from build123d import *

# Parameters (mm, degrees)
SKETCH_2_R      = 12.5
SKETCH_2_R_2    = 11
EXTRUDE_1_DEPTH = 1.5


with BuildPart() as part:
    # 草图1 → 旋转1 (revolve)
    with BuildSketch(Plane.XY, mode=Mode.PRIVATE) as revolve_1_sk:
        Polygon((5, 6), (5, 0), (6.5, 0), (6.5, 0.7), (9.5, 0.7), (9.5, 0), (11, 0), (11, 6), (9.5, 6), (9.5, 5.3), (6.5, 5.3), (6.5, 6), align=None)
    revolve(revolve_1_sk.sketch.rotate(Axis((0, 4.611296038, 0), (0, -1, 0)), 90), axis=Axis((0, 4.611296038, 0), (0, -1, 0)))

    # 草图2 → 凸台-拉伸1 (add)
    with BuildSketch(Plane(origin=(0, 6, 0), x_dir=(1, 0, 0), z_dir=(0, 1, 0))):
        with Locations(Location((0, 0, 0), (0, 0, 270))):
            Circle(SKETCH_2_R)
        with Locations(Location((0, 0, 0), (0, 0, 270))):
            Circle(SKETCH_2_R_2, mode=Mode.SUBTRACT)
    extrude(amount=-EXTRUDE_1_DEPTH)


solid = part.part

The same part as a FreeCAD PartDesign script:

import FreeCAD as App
import Part
import Sketcher

V = App.Vector

doc = App.newDocument("Part")
body = doc.addObject("PartDesign::Body", "Body")

sketch1 = doc.addObject("Sketcher::SketchObject", "Sketch")
body.addObject(sketch1)
sketch1.AttachmentSupport = (doc.XY_Plane, [""])
sketch1.MapMode = "FlatFace"
sketch1.addGeometry(Part.LineSegment(V(5, 6, 0), V(5, 0, 0)), False)
sketch1.addGeometry(Part.LineSegment(V(5, 0, 0), V(6.5, 0, 0)), False)
sketch1.addGeometry(Part.LineSegment(V(6.5, 0, 0), V(6.5, 0.7, 0)), False)
sketch1.addGeometry(Part.LineSegment(V(6.5, 0.7, 0), V(9.5, 0.7, 0)), False)
sketch1.addGeometry(Part.LineSegment(V(9.5, 0.7, 0), V(9.5, 0, 0)), False)
sketch1.addGeometry(Part.LineSegment(V(9.5, 0, 0), V(11, 0, 0)), False)
sketch1.addGeometry(Part.LineSegment(V(11, 0, 0), V(11, 6, 0)), False)
sketch1.addGeometry(Part.LineSegment(V(11, 6, 0), V(9.5, 6, 0)), False)
sketch1.addGeometry(Part.LineSegment(V(9.5, 6, 0), V(9.5, 5.3, 0)), False)
sketch1.addGeometry(Part.LineSegment(V(9.5, 5.3, 0), V(6.5, 5.3, 0)), False)
sketch1.addGeometry(Part.LineSegment(V(6.5, 5.3, 0), V(6.5, 6, 0)), False)
sketch1.addGeometry(Part.LineSegment(V(6.5, 6, 0), V(5, 6, 0)), False)
sketch1.addConstraint(Sketcher.Constraint("Coincident", 0, 2, 1, 1))
sketch1.addConstraint(Sketcher.Constraint("Coincident", 1, 2, 2, 1))
sketch1.addConstraint(Sketcher.Constraint("Coincident", 2, 2, 3, 1))
sketch1.addConstraint(Sketcher.Constraint("Coincident", 3, 2, 4, 1))
sketch1.addConstraint(Sketcher.Constraint("Coincident", 4, 2, 5, 1))
sketch1.addConstraint(Sketcher.Constraint("Coincident", 5, 2, 6, 1))
sketch1.addConstraint(Sketcher.Constraint("Coincident", 6, 2, 7, 1))
sketch1.addConstraint(Sketcher.Constraint("Coincident", 7, 2, 8, 1))
sketch1.addConstraint(Sketcher.Constraint("Coincident", 8, 2, 9, 1))
sketch1.addConstraint(Sketcher.Constraint("Coincident", 9, 2, 10, 1))
sketch1.addConstraint(Sketcher.Constraint("Coincident", 10, 2, 11, 1))
sketch1.addConstraint(Sketcher.Constraint("Coincident", 11, 2, 0, 1))
sketch1.addConstraint(Sketcher.Constraint("Vertical", 0))
sketch1.addConstraint(Sketcher.Constraint("Horizontal", 1))
sketch1.addConstraint(Sketcher.Constraint("Vertical", 2))
sketch1.addConstraint(Sketcher.Constraint("Horizontal", 3))
sketch1.addConstraint(Sketcher.Constraint("Vertical", 4))
sketch1.addConstraint(Sketcher.Constraint("Horizontal", 5))
sketch1.addConstraint(Sketcher.Constraint("Vertical", 6))
sketch1.addConstraint(Sketcher.Constraint("Horizontal", 7))
sketch1.addConstraint(Sketcher.Constraint("Vertical", 8))
sketch1.addConstraint(Sketcher.Constraint("Horizontal", 9))
sketch1.addConstraint(Sketcher.Constraint("Vertical", 10))
sketch1.addConstraint(Sketcher.Constraint("Horizontal", 11))
sketch1.addConstraint(Sketcher.Constraint("PointOnObject", 0, 2, -1))
sketch1.addConstraint(Sketcher.Constraint("PointOnObject", 4, 2, -1))
sketch1.addConstraint(Sketcher.Constraint("Horizontal", 7, 2, 10, 2))
sketch1.addConstraint(Sketcher.Constraint("Vertical", 4, 2, 7, 2))
sketch1.addConstraint(Sketcher.Constraint("Vertical", 2, 2, 9, 2))
sketch1.addConstraint(Sketcher.Constraint("Equal", 1, 5))
sketch1.addConstraint(Sketcher.Constraint("Equal", 4, 8))
sketch1.addConstraint(Sketcher.Constraint("DistanceX", 3, 1, 3, 2, 3.0))
sketch1.addConstraint(Sketcher.Constraint("DistanceY", 0, 2, 0, 1, 6.0))
sketch1.addConstraint(Sketcher.Constraint("DistanceX", 1, 1, 1, 2, 1.5))
sketch1.addConstraint(Sketcher.Constraint("DistanceY", 2, 1, 2, 2, 0.7))
sketch1.addConstraint(Sketcher.Constraint("DistanceX", -1, 1, 0, 2, 5.0))
revolution = doc.addObject("PartDesign::Revolution", "Revolution")
body.addObject(revolution)
revolution.Profile = sketch1
revolution.ReferenceAxis = (sketch1, ["V_Axis"])
revolution.Angle = 360

sketch2 = doc.addObject("Sketcher::SketchObject", "Sketch001")
body.addObject(sketch2)
sketch2.AttachmentSupport = (doc.XZ_Plane, [""])
sketch2.MapMode = "FlatFace"
sketch2.AttachmentOffset = App.Placement(V(0, 0, -6), App.Rotation())
sketch2.addGeometry(Part.Circle(V(0, 0, 0), V(0, 0, 1), 12), False)
sketch2.addGeometry(Part.Circle(V(0, 0, 0), V(0, 0, 1), 11), False)
sketch2.addConstraint(Sketcher.Constraint("Coincident", 0, 3, -1, 1))
sketch2.addConstraint(Sketcher.Constraint("Coincident", 1, 3, -1, 1))
sketch2.addConstraint(Sketcher.Constraint("Diameter", 0, 25.0))
sketch2.addConstraint(Sketcher.Constraint("Diameter", 1, 22.0))
pad1 = doc.addObject("PartDesign::Pad", "Pad")
body.addObject(pad1)
pad1.Profile = sketch2
pad1.Length = 1.5

doc.recompute()
